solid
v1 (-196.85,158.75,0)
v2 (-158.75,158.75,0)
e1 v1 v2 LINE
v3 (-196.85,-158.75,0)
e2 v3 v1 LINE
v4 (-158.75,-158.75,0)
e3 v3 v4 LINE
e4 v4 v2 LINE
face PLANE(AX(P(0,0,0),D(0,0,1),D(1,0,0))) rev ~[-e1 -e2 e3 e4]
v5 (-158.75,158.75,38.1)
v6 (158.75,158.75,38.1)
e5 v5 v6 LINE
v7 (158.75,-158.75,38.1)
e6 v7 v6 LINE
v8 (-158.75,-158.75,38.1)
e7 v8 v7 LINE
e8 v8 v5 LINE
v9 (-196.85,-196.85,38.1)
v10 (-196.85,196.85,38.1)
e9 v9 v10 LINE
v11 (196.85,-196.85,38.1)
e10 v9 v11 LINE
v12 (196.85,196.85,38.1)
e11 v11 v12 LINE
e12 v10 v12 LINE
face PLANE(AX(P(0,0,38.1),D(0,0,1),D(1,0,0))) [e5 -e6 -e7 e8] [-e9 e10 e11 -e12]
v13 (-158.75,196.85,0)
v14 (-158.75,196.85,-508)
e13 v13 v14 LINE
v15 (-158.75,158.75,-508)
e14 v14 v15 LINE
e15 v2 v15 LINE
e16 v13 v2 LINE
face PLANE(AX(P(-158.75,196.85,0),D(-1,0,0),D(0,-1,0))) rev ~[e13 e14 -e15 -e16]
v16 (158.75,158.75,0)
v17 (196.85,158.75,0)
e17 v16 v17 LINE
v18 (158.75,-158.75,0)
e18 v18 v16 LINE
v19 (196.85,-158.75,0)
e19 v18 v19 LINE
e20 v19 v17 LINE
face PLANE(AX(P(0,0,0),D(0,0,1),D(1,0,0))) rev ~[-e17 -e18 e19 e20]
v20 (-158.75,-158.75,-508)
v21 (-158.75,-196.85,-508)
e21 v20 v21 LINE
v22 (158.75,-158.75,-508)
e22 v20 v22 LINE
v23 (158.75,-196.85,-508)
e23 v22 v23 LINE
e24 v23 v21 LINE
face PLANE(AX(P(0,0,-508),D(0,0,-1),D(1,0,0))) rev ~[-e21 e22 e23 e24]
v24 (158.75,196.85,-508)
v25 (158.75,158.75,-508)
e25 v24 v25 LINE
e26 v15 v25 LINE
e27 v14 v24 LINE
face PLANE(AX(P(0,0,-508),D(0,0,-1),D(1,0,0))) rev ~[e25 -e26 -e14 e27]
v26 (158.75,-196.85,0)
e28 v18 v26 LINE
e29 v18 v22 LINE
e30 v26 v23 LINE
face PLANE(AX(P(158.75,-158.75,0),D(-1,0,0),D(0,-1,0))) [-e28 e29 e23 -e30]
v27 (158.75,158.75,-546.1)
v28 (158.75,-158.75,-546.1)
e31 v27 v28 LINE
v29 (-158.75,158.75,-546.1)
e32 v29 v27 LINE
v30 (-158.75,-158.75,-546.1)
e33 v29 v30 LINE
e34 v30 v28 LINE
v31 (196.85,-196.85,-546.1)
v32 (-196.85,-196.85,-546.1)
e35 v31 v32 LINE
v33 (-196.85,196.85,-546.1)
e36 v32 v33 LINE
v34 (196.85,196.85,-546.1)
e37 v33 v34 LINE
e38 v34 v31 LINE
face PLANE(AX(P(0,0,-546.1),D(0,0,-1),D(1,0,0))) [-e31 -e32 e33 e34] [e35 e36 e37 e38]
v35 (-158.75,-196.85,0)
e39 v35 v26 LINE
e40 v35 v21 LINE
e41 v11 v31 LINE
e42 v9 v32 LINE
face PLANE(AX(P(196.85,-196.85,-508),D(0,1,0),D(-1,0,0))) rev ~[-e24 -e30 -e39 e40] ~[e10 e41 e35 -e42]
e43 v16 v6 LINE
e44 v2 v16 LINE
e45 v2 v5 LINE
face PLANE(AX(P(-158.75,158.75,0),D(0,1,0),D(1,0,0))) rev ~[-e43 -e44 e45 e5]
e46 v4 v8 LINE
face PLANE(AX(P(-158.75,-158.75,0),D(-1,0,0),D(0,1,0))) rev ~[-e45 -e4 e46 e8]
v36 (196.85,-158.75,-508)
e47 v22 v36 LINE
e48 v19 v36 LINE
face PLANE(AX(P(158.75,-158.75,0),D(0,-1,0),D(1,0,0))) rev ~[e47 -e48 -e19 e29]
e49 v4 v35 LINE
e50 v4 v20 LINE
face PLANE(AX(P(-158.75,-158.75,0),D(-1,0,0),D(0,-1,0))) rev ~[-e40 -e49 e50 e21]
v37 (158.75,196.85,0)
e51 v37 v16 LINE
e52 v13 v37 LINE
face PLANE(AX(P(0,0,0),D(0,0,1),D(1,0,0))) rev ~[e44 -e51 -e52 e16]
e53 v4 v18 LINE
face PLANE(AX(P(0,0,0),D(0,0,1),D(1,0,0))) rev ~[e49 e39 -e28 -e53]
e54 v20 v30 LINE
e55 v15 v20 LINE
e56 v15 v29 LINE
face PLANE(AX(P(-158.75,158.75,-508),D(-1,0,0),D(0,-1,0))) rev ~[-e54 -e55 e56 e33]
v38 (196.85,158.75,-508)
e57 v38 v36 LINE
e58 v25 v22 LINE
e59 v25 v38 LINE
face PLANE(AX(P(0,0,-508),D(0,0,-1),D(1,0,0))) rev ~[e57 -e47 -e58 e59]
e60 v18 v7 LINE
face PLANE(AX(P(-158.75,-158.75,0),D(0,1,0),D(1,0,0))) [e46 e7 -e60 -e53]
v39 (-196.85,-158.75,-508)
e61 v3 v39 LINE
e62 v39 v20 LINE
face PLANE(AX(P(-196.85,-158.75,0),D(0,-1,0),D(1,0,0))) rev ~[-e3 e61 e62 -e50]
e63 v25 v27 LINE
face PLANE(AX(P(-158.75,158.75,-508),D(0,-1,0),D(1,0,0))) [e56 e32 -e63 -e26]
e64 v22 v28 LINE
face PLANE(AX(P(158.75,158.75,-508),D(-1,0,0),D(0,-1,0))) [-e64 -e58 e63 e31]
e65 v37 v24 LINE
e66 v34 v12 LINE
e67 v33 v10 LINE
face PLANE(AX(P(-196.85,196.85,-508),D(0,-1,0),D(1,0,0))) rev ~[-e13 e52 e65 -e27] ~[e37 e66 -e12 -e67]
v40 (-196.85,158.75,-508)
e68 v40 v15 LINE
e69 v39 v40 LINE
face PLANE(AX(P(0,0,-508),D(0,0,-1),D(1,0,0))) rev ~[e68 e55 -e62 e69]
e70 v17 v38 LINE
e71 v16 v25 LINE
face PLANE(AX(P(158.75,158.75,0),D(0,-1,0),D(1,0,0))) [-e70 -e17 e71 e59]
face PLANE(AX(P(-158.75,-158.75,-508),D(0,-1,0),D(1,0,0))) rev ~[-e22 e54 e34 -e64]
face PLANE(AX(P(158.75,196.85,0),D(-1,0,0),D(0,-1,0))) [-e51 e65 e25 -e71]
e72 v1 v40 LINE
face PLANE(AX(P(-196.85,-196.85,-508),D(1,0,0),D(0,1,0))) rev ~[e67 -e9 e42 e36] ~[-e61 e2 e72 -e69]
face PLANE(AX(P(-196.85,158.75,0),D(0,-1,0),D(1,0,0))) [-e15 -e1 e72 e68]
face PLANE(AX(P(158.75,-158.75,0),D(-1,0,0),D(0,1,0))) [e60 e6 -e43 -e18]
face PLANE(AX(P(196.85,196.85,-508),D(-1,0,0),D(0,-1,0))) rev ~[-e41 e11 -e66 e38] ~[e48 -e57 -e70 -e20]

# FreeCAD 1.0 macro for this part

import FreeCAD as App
import Part
import Sketcher

V = App.Vector
Q = App.Units.Quantity


def add_polygon(sketch, points):
    """Adds a closed chain of lines whose ends are joined by coincident constraints."""
    first, n = sketch.GeometryCount, len(points)
    for a, b in zip(points, points[1:] + points[:1]):
        sketch.addGeometry(Part.LineSegment(App.Vector(*a, 0), App.Vector(*b, 0)), False)
    for i in range(n):
        sketch.addConstraint(Sketcher.Constraint("Coincident", first + i, 2, first + (i + 1) % n, 1))

doc = App.newDocument("Part")
body = doc.addObject("PartDesign::Body", "Body")

sketch1 = body.newObject("Sketcher::SketchObject", "Sketch")
sketch1.AttachmentSupport = (doc.getObject("XY_Plane"), [""])
sketch1.MapMode = "FlatFace"
add_polygon(sketch1, [(-197, 197), (-197, -197), (197, -197), (197, 197)])
add_polygon(sketch1, [(159, -159), (-159, -159), (-159, 159), (159, 159)])
sketch1.addConstraint(Sketcher.Constraint("Vertical", 0))
sketch1.addConstraint(Sketcher.Constraint("Horizontal", 1))
sketch1.addConstraint(Sketcher.Constraint("Vertical", 2))
sketch1.addConstraint(Sketcher.Constraint("Horizontal", 3))
sketch1.addConstraint(Sketcher.Constraint("Horizontal", 4))
sketch1.addConstraint(Sketcher.Constraint("Vertical", 5))
sketch1.addConstraint(Sketcher.Constraint("Horizontal", 6))
sketch1.addConstraint(Sketcher.Constraint("Vertical", 7))
sketch1.addConstraint(Sketcher.Constraint("Symmetric", 0, 2, 2, 2, -1, 1))
sketch1.addConstraint(Sketcher.Constraint("Symmetric", 4, 2, 6, 2, -1, 1))
sketch1.addConstraint(Sketcher.Constraint("Equal", 3, 0))
sketch1.addConstraint(Sketcher.Constraint("Equal", 6, 5))
sketch1.addConstraint(Sketcher.Constraint("DistanceX", 1, 1, 1, 2, Q("15.5 in")))
sketch1.addConstraint(Sketcher.Constraint("DistanceX", 4, 2, 4, 1, Q("12.5 in")))
pad1 = body.newObject("PartDesign::Pad", "Pad")
pad1.Profile = sketch1
pad1.Length = Q("1.5 in")

sketch2 = body.newObject("Sketcher::SketchObject", "Sketch001")
sketch2.AttachmentSupport = (doc.getObject("XY_Plane"), [""])
sketch2.MapMode = "FlatFace"
add_polygon(sketch2, [(-197, -197), (-197, -159), (-159, -159), (-159, -197)])
add_polygon(sketch2, [(-197, 159), (-197, 197), (-159, 197), (-159, 159)])
add_polygon(sketch2, [(159, -197), (159, -159), (197, -159), (197, -197)])
add_polygon(sketch2, [(159, 159), (159, 197), (197, 197), (197, 159)])
sketch2.addConstraint(Sketcher.Constraint("Vertical", 0))
sketch2.addConstraint(Sketcher.Constraint("Horizontal", 1))
sketch2.addConstraint(Sketcher.Constraint("Vertical", 2))
sketch2.addConstraint(Sketcher.Constraint("Horizontal", 3))
sketch2.addConstraint(Sketcher.Constraint("Vertical", 4))
sketch2.addConstraint(Sketcher.Constraint("Horizontal", 5))
sketch2.addConstraint(Sketcher.Constraint("Vertical", 6))
sketch2.addConstraint(Sketcher.Constraint("Horizontal", 7))
sketch2.addConstraint(Sketcher.Constraint("Vertical", 8))
sketch2.addConstraint(Sketcher.Constraint("Horizontal", 9))
sketch2.addConstraint(Sketcher.Constraint("Vertical", 10))
sketch2.addConstraint(Sketcher.Constraint("Horizontal", 11))
sketch2.addConstraint(Sketcher.Constraint("Vertical", 12))
sketch2.addConstraint(Sketcher.Constraint("Horizontal", 13))
sketch2.addConstraint(Sketcher.Constraint("Vertical", 14))
sketch2.addConstraint(Sketcher.Constraint("Horizontal", 15))
sketch2.addConstraint(Sketcher.Constraint("Symmetric", 6, 2, 8, 2, -1, 1))
sketch2.addConstraint(Sketcher.Constraint("Symmetric", 4, 2, 10, 2, -1, 1))
sketch2.addConstraint(Sketcher.Constraint("Symmetric", 2, 2, 12, 2, -1, 1))
sketch2.addConstraint(Sketcher.Constraint("Symmetric", 0, 2, 14, 2, -1, 1))
sketch2.addConstraint(Sketcher.Constraint("Symmetric", 1, 2, 8, 2, -2))
sketch2.addConstraint(Sketcher.Constraint("Symmetric", 3, 2, 10, 2, -2))
sketch2.addConstraint(Sketcher.Constraint("Equal", 15, 0))
sketch2.addConstraint(Sketcher.Constraint("DistanceX", 1, 1, 1, 2, Q("1.5 in")))
sketch2.addConstraint(Sketcher.Constraint("DistanceY", 0, 2, 4, 2, Q("14 in")))
sketch2.addConstraint(Sketcher.Constraint("DistanceX", 0, 2, 8, 2, Q("14 in")))
pad2 = body.newObject("PartDesign::Pad", "Pad001")
pad2.Profile = sketch2
pad2.Length = Q("20 in")
pad2.Reversed = True

sketch3 = body.newObject("Sketcher::SketchObject", "Sketch002")
sketch3.AttachmentSupport = (doc.getObject("XY_Plane"), [""])
sketch3.MapMode = "FlatFace"
sketch3.AttachmentOffset = App.Placement(V(0, 0, -20 * 25.4), App.Rotation())
add_polygon(sketch3, [(197, 197), (197, -197), (-197, -197), (-197, 197)])
add_polygon(sketch3, [(159, 159), (-159, 159), (-159, -159), (159, -159)])
sketch3.addConstraint(Sketcher.Constraint("Vertical", 0))
sketch3.addConstraint(Sketcher.Constraint("Horizontal", 1))
sketch3.addConstraint(Sketcher.Constraint("Vertical", 2))
sketch3.addConstraint(Sketcher.Constraint("Horizontal", 3))
sketch3.addConstraint(Sketcher.Constraint("Horizontal", 4))
sketch3.addConstraint(Sketcher.Constraint("Vertical", 5))
sketch3.addConstraint(Sketcher.Constraint("Horizontal", 6))
sketch3.addConstraint(Sketcher.Constraint("Vertical", 7))
sketch3.addConstraint(Sketcher.Constraint("Symmetric", 0, 2, 2, 2, -1, 1))
sketch3.addConstraint(Sketcher.Constraint("Symmetric", 4, 2, 6, 2, -1, 1))
sketch3.addConstraint(Sketcher.Constraint("Equal", 3, 0))
sketch3.addConstraint(Sketcher.Constraint("Equal", 6, 5))
sketch3.addConstraint(Sketcher.Constraint("DistanceX", 1, 2, 1, 1, Q("15.5 in")))
sketch3.addConstraint(Sketcher.Constraint("DistanceX", 4, 2, 4, 1, Q("12.5 in")))
pad3 = body.newObject("PartDesign::Pad", "Pad002")
pad3.Profile = sketch3
pad3.Length = Q("1.5 in")
pad3.Reversed = True

doc.recompute()
